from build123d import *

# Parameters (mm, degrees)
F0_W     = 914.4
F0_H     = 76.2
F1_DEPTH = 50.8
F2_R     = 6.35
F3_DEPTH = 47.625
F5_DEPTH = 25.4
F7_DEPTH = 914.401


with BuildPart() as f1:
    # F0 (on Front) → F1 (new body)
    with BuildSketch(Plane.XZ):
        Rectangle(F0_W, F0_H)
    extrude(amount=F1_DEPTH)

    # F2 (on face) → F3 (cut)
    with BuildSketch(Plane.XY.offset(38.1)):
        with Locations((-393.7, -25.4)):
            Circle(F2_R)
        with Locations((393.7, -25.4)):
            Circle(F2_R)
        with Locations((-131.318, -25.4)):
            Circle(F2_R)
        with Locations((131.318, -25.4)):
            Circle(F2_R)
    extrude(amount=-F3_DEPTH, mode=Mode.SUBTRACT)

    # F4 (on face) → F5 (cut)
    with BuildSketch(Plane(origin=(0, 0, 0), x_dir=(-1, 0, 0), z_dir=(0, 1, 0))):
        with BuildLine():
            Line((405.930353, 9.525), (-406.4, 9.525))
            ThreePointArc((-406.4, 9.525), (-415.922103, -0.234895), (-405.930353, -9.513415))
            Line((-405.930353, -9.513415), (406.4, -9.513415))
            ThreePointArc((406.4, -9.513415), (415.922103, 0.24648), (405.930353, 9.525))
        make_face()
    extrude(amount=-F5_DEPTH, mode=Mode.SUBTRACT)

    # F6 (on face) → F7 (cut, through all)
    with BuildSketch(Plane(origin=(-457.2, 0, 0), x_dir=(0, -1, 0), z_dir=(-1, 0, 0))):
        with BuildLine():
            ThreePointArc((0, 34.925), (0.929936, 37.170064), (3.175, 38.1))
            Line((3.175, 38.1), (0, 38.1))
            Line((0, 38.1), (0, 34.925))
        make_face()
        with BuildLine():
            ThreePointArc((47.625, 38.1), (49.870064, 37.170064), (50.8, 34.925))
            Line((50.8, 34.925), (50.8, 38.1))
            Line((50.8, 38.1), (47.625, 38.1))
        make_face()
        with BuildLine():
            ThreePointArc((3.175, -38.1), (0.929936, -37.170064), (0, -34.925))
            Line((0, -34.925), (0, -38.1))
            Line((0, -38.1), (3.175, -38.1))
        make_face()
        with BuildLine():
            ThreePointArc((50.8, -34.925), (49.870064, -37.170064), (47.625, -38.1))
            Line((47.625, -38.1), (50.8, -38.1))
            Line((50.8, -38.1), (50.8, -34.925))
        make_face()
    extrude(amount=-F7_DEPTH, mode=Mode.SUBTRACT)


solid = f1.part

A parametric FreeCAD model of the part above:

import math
import FreeCAD as App
import Part
import Sketcher
Q = App.Units.Quantity


def add_polygon(sketch, points):
    """Adds a closed chain of lines whose ends are joined by coincident constraints."""
    first, n = sketch.GeometryCount, len(points)
    for a, b in zip(points, points[1:] + points[:1]):
        sketch.addGeometry(Part.LineSegment(App.Vector(*a, 0), App.Vector(*b, 0)), False)
    for i in range(n):
        sketch.addConstraint(Sketcher.Constraint("Coincident", first + i, 2, first + (i + 1) % n, 1))

doc = App.newDocument("Part")
body = doc.addObject("PartDesign::Body", "Body")

# Sketch on XZ plane
sketch1 = body.newObject("Sketcher::SketchObject", "Sketch")
sketch1.AttachmentSupport = (doc.getObject("XZ_Plane"), [""])
sketch1.MapMode = "FlatFace"
add_polygon(sketch1, [(-457, 38), (-457, -38), (457, -38), (457, 38)])  # lines 0-3
sketch1.addConstraint([
    Sketcher.Constraint("Vertical", 0),
    Sketcher.Constraint("Horizontal", 1),
    Sketcher.Constraint("Vertical", 2),
    Sketcher.Constraint("Horizontal", 3),
    Sketcher.Constraint("Symmetric", 0, 2, 2, 2, -1, 1),
    Sketcher.Constraint("DistanceX", 1, 1, 1, 2, Q("36 in")),
    Sketcher.Constraint("DistanceY", 0, 2, 0, 1, Q("3 in")),
])
pad1 = body.newObject("PartDesign::Pad", "Pad")
pad1.Profile = sketch1
pad1.Length = Q("2 in")

# Sketch on XY plane
sketch2 = body.newObject("Sketcher::SketchObject", "Sketch001")
sketch2.AttachmentSupport = (doc.getObject("XY_Plane"), [""])
sketch2.MapMode = "FlatFace"
sketch2.AttachmentOffset = App.Placement(App.Vector(0, 0, 1.5 * 25.4), App.Rotation())
sketch2.addGeometry([
    Part.Circle(App.Vector(-394, -25, 0), App.Vector(0, 0, 1), 6),
    Part.Circle(App.Vector(394, -25, 0), App.Vector(0, 0, 1), 6),
    Part.Circle(App.Vector(-131, -25, 0), App.Vector(0, 0, 1), 6),
    Part.Circle(App.Vector(131, -25, 0), App.Vector(0, 0, 1), 6),
], False)
sketch2.addConstraint([
    Sketcher.Constraint("Equal", 0, 1),
    Sketcher.Constraint("Equal", 1, 2),
    Sketcher.Constraint("Equal", 2, 3),
    Sketcher.Constraint("Symmetric", 0, 3, 1, 3, -2),
    Sketcher.Constraint("Symmetric", 2, 3, 3, 3, -2),
    Sketcher.Constraint("Horizontal", 1, 3, 2, 3),
    Sketcher.Constraint("Diameter", 0, Q("0.5 in")),
    Sketcher.Constraint("DistanceY", 0, 3, -1, 1, Q("1 in")),
    Sketcher.Constraint("DistanceX", 0, 3, 1, 3, Q("31 in")),
    Sketcher.Constraint("DistanceX", 2, 3, -1, 1, Q("5.17 in")),
])
pocket1 = body.newObject("PartDesign::Pocket", "Pocket")
pocket1.Profile = sketch2
pocket1.Length = Q("1.875 in")

# Sketch on XZ plane
sketch3 = body.newObject("Sketcher::SketchObject", "Sketch002")
sketch3.AttachmentSupport = (doc.getObject("XZ_Plane"), [""])
sketch3.MapMode = "FlatFace"
sketch3.addGeometry([
    Part.LineSegment(App.Vector(-406, 10, 0), App.Vector(406, 10, 0)),
    Part.ArcOfCircle(Part.Circle(App.Vector(406, 0, 0), App.Vector(0, 0, 1), 10), math.radians(-93), math.radians(90)),
    Part.LineSegment(App.Vector(406, -10, 0), App.Vector(-406, -10, 0)),
    Part.ArcOfCircle(Part.Circle(App.Vector(-406, 0, 0), App.Vector(0, 0, 1), 10), math.radians(87), math.radians(270)),
], False)
sketch3.addConstraint([
    Sketcher.Constraint("Tangent", 0, 2, 1, 2),
    Sketcher.Constraint("Coincident", 1, 1, 2, 1),
    Sketcher.Constraint("Tangent", 2, 2, 3, 2),
    Sketcher.Constraint("Coincident", 3, 1, 0, 1),
    Sketcher.Constraint("Horizontal", 0),
    Sketcher.Constraint("Horizontal", 2),
    Sketcher.Constraint("Equal", 1, 3),
    Sketcher.Constraint("PointOnObject", 1, 3, -1),
    Sketcher.Constraint("DistanceX", -1, 1, 1, 3, Q("16 in")),
    Sketcher.Constraint("DistanceX", 3, 3, -1, 1, Q("16 in")),
    Sketcher.Constraint("Radius", 1, Q("0.375 in")),
    Sketcher.Constraint("DistanceX", 0, 1, 0, 2, Q("812.330353 mm")),
])
pocket2 = body.newObject("PartDesign::Pocket", "Pocket001")
pocket2.Profile = sketch3
pocket2.Length = Q("1 in")
pocket2.Reversed = True

# Sketch on YZ plane
sketch4 = body.newObject("Sketcher::SketchObject", "Sketch003")
sketch4.AttachmentSupport = (doc.getObject("YZ_Plane"), [""])
sketch4.MapMode = "FlatFace"
sketch4.AttachmentOffset = App.Placement(App.Vector(0, 0, -18 * 25.4), App.Rotation())
sketch4.addGeometry([
    Part.ArcOfCircle(Part.Circle(App.Vector(-3.2, 34.9, 0), App.Vector(0, 0, 1), 3.2), math.radians(0), math.radians(90)),  # 0
    Part.LineSegment(App.Vector(-3.2, 38.1, 0), App.Vector(0, 38.1, 0)),  # 1
    Part.LineSegment(App.Vector(0, 38.1, 0), App.Vector(0, 34.9, 0)),  # 2
    Part.ArcOfCircle(Part.Circle(App.Vector(-47.6, 34.9, 0), App.Vector(0, 0, 1), 3.2), math.radians(90), math.radians(180)),  # 3
    Part.LineSegment(App.Vector(-50.8, 34.9, 0), App.Vector(-50.8, 38.1, 0)),  # 4
    Part.LineSegment(App.Vector(-50.8, 38.1, 0), App.Vector(-47.6, 38.1, 0)),  # 5
    Part.ArcOfCircle(Part.Circle(App.Vector(-3.2, -34.9, 0), App.Vector(0, 0, 1), 3.2), math.radians(-90), math.radians(0)),  # 6
    Part.LineSegment(App.Vector(0, -34.9, 0), App.Vector(0, -38.1, 0)),  # 7
    Part.LineSegment(App.Vector(0, -38.1, 0), App.Vector(-3.2, -38.1, 0)),  # 8
    Part.ArcOfCircle(Part.Circle(App.Vector(-47.6, -34.9, 0), App.Vector(0, 0, 1), 3.2), math.radians(-180), math.radians(-90)),  # 9
    Part.LineSegment(App.Vector(-47.6, -38.1, 0), App.Vector(-50.8, -38.1, 0)),  # 10
    Part.LineSegment(App.Vector(-50.8, -38.1, 0), App.Vector(-50.8, -34.9, 0)),  # 11
], False)
sketch4.addConstraint([
    Sketcher.Constraint("Tangent", 0, 2, 1, 1),
    Sketcher.Constraint("Coincident", 1, 2, 2, 1),
    Sketcher.Constraint("Tangent", 2, 2, 0, 1),
    Sketcher.Constraint("Tangent", 3, 2, 4, 1),
    Sketcher.Constraint("Coincident", 4, 2, 5, 1),
    Sketcher.Constraint("Tangent", 5, 2, 3, 1),
    Sketcher.Constraint("Tangent", 6, 2, 7, 1),
    Sketcher.Constraint("Coincident", 7, 2, 8, 1),
    Sketcher.Constraint("Tangent", 8, 2, 6, 1),
    Sketcher.Constraint("Tangent", 9, 2, 10, 1),
    Sketcher.Constraint("Coincident", 10, 2, 11, 1),
    Sketcher.Constraint("Tangent", 11, 2, 9, 1),
    Sketcher.Constraint("Horizontal", 1),
    Sketcher.Constraint("Vertical", 2),
    Sketcher.Constraint("Vertical", 4),
    Sketcher.Constraint("Horizontal", 5),
    Sketcher.Constraint("Vertical", 7),
    Sketcher.Constraint("Horizontal", 8),
    Sketcher.Constraint("Horizontal", 10),
    Sketcher.Constraint("Vertical", 11),
    Sketcher.Constraint("Equal", 0, 3),
    Sketcher.Constraint("Equal", 3, 6),
    Sketcher.Constraint("Equal", 6, 9),
    Sketcher.Constraint("Symmetric", 2, 2, 6, 2, -1, 1),
    Sketcher.Constraint("Symmetric", 3, 3, 9, 3, -1),
    Sketcher.Constraint("PointOnObject", 1, 2, -2),
    Sketcher.Constraint("Horizontal", 0, 3, 3, 3),
    Sketcher.Constraint("DistanceX", 3, 2, -1, 1, Q("2 in")),
    Sketcher.Constraint("Radius", 0, Q("0.125 in")),
    Sketcher.Constraint("DistanceY", -1, 1, 0, 2, Q("1.5 in")),
])
pocket3 = body.newObject("PartDesign::Pocket", "Pocket002")
pocket3.Profile = sketch4
pocket3.Type = "ThroughAll"
pocket3.Reversed = True

doc.recompute()
